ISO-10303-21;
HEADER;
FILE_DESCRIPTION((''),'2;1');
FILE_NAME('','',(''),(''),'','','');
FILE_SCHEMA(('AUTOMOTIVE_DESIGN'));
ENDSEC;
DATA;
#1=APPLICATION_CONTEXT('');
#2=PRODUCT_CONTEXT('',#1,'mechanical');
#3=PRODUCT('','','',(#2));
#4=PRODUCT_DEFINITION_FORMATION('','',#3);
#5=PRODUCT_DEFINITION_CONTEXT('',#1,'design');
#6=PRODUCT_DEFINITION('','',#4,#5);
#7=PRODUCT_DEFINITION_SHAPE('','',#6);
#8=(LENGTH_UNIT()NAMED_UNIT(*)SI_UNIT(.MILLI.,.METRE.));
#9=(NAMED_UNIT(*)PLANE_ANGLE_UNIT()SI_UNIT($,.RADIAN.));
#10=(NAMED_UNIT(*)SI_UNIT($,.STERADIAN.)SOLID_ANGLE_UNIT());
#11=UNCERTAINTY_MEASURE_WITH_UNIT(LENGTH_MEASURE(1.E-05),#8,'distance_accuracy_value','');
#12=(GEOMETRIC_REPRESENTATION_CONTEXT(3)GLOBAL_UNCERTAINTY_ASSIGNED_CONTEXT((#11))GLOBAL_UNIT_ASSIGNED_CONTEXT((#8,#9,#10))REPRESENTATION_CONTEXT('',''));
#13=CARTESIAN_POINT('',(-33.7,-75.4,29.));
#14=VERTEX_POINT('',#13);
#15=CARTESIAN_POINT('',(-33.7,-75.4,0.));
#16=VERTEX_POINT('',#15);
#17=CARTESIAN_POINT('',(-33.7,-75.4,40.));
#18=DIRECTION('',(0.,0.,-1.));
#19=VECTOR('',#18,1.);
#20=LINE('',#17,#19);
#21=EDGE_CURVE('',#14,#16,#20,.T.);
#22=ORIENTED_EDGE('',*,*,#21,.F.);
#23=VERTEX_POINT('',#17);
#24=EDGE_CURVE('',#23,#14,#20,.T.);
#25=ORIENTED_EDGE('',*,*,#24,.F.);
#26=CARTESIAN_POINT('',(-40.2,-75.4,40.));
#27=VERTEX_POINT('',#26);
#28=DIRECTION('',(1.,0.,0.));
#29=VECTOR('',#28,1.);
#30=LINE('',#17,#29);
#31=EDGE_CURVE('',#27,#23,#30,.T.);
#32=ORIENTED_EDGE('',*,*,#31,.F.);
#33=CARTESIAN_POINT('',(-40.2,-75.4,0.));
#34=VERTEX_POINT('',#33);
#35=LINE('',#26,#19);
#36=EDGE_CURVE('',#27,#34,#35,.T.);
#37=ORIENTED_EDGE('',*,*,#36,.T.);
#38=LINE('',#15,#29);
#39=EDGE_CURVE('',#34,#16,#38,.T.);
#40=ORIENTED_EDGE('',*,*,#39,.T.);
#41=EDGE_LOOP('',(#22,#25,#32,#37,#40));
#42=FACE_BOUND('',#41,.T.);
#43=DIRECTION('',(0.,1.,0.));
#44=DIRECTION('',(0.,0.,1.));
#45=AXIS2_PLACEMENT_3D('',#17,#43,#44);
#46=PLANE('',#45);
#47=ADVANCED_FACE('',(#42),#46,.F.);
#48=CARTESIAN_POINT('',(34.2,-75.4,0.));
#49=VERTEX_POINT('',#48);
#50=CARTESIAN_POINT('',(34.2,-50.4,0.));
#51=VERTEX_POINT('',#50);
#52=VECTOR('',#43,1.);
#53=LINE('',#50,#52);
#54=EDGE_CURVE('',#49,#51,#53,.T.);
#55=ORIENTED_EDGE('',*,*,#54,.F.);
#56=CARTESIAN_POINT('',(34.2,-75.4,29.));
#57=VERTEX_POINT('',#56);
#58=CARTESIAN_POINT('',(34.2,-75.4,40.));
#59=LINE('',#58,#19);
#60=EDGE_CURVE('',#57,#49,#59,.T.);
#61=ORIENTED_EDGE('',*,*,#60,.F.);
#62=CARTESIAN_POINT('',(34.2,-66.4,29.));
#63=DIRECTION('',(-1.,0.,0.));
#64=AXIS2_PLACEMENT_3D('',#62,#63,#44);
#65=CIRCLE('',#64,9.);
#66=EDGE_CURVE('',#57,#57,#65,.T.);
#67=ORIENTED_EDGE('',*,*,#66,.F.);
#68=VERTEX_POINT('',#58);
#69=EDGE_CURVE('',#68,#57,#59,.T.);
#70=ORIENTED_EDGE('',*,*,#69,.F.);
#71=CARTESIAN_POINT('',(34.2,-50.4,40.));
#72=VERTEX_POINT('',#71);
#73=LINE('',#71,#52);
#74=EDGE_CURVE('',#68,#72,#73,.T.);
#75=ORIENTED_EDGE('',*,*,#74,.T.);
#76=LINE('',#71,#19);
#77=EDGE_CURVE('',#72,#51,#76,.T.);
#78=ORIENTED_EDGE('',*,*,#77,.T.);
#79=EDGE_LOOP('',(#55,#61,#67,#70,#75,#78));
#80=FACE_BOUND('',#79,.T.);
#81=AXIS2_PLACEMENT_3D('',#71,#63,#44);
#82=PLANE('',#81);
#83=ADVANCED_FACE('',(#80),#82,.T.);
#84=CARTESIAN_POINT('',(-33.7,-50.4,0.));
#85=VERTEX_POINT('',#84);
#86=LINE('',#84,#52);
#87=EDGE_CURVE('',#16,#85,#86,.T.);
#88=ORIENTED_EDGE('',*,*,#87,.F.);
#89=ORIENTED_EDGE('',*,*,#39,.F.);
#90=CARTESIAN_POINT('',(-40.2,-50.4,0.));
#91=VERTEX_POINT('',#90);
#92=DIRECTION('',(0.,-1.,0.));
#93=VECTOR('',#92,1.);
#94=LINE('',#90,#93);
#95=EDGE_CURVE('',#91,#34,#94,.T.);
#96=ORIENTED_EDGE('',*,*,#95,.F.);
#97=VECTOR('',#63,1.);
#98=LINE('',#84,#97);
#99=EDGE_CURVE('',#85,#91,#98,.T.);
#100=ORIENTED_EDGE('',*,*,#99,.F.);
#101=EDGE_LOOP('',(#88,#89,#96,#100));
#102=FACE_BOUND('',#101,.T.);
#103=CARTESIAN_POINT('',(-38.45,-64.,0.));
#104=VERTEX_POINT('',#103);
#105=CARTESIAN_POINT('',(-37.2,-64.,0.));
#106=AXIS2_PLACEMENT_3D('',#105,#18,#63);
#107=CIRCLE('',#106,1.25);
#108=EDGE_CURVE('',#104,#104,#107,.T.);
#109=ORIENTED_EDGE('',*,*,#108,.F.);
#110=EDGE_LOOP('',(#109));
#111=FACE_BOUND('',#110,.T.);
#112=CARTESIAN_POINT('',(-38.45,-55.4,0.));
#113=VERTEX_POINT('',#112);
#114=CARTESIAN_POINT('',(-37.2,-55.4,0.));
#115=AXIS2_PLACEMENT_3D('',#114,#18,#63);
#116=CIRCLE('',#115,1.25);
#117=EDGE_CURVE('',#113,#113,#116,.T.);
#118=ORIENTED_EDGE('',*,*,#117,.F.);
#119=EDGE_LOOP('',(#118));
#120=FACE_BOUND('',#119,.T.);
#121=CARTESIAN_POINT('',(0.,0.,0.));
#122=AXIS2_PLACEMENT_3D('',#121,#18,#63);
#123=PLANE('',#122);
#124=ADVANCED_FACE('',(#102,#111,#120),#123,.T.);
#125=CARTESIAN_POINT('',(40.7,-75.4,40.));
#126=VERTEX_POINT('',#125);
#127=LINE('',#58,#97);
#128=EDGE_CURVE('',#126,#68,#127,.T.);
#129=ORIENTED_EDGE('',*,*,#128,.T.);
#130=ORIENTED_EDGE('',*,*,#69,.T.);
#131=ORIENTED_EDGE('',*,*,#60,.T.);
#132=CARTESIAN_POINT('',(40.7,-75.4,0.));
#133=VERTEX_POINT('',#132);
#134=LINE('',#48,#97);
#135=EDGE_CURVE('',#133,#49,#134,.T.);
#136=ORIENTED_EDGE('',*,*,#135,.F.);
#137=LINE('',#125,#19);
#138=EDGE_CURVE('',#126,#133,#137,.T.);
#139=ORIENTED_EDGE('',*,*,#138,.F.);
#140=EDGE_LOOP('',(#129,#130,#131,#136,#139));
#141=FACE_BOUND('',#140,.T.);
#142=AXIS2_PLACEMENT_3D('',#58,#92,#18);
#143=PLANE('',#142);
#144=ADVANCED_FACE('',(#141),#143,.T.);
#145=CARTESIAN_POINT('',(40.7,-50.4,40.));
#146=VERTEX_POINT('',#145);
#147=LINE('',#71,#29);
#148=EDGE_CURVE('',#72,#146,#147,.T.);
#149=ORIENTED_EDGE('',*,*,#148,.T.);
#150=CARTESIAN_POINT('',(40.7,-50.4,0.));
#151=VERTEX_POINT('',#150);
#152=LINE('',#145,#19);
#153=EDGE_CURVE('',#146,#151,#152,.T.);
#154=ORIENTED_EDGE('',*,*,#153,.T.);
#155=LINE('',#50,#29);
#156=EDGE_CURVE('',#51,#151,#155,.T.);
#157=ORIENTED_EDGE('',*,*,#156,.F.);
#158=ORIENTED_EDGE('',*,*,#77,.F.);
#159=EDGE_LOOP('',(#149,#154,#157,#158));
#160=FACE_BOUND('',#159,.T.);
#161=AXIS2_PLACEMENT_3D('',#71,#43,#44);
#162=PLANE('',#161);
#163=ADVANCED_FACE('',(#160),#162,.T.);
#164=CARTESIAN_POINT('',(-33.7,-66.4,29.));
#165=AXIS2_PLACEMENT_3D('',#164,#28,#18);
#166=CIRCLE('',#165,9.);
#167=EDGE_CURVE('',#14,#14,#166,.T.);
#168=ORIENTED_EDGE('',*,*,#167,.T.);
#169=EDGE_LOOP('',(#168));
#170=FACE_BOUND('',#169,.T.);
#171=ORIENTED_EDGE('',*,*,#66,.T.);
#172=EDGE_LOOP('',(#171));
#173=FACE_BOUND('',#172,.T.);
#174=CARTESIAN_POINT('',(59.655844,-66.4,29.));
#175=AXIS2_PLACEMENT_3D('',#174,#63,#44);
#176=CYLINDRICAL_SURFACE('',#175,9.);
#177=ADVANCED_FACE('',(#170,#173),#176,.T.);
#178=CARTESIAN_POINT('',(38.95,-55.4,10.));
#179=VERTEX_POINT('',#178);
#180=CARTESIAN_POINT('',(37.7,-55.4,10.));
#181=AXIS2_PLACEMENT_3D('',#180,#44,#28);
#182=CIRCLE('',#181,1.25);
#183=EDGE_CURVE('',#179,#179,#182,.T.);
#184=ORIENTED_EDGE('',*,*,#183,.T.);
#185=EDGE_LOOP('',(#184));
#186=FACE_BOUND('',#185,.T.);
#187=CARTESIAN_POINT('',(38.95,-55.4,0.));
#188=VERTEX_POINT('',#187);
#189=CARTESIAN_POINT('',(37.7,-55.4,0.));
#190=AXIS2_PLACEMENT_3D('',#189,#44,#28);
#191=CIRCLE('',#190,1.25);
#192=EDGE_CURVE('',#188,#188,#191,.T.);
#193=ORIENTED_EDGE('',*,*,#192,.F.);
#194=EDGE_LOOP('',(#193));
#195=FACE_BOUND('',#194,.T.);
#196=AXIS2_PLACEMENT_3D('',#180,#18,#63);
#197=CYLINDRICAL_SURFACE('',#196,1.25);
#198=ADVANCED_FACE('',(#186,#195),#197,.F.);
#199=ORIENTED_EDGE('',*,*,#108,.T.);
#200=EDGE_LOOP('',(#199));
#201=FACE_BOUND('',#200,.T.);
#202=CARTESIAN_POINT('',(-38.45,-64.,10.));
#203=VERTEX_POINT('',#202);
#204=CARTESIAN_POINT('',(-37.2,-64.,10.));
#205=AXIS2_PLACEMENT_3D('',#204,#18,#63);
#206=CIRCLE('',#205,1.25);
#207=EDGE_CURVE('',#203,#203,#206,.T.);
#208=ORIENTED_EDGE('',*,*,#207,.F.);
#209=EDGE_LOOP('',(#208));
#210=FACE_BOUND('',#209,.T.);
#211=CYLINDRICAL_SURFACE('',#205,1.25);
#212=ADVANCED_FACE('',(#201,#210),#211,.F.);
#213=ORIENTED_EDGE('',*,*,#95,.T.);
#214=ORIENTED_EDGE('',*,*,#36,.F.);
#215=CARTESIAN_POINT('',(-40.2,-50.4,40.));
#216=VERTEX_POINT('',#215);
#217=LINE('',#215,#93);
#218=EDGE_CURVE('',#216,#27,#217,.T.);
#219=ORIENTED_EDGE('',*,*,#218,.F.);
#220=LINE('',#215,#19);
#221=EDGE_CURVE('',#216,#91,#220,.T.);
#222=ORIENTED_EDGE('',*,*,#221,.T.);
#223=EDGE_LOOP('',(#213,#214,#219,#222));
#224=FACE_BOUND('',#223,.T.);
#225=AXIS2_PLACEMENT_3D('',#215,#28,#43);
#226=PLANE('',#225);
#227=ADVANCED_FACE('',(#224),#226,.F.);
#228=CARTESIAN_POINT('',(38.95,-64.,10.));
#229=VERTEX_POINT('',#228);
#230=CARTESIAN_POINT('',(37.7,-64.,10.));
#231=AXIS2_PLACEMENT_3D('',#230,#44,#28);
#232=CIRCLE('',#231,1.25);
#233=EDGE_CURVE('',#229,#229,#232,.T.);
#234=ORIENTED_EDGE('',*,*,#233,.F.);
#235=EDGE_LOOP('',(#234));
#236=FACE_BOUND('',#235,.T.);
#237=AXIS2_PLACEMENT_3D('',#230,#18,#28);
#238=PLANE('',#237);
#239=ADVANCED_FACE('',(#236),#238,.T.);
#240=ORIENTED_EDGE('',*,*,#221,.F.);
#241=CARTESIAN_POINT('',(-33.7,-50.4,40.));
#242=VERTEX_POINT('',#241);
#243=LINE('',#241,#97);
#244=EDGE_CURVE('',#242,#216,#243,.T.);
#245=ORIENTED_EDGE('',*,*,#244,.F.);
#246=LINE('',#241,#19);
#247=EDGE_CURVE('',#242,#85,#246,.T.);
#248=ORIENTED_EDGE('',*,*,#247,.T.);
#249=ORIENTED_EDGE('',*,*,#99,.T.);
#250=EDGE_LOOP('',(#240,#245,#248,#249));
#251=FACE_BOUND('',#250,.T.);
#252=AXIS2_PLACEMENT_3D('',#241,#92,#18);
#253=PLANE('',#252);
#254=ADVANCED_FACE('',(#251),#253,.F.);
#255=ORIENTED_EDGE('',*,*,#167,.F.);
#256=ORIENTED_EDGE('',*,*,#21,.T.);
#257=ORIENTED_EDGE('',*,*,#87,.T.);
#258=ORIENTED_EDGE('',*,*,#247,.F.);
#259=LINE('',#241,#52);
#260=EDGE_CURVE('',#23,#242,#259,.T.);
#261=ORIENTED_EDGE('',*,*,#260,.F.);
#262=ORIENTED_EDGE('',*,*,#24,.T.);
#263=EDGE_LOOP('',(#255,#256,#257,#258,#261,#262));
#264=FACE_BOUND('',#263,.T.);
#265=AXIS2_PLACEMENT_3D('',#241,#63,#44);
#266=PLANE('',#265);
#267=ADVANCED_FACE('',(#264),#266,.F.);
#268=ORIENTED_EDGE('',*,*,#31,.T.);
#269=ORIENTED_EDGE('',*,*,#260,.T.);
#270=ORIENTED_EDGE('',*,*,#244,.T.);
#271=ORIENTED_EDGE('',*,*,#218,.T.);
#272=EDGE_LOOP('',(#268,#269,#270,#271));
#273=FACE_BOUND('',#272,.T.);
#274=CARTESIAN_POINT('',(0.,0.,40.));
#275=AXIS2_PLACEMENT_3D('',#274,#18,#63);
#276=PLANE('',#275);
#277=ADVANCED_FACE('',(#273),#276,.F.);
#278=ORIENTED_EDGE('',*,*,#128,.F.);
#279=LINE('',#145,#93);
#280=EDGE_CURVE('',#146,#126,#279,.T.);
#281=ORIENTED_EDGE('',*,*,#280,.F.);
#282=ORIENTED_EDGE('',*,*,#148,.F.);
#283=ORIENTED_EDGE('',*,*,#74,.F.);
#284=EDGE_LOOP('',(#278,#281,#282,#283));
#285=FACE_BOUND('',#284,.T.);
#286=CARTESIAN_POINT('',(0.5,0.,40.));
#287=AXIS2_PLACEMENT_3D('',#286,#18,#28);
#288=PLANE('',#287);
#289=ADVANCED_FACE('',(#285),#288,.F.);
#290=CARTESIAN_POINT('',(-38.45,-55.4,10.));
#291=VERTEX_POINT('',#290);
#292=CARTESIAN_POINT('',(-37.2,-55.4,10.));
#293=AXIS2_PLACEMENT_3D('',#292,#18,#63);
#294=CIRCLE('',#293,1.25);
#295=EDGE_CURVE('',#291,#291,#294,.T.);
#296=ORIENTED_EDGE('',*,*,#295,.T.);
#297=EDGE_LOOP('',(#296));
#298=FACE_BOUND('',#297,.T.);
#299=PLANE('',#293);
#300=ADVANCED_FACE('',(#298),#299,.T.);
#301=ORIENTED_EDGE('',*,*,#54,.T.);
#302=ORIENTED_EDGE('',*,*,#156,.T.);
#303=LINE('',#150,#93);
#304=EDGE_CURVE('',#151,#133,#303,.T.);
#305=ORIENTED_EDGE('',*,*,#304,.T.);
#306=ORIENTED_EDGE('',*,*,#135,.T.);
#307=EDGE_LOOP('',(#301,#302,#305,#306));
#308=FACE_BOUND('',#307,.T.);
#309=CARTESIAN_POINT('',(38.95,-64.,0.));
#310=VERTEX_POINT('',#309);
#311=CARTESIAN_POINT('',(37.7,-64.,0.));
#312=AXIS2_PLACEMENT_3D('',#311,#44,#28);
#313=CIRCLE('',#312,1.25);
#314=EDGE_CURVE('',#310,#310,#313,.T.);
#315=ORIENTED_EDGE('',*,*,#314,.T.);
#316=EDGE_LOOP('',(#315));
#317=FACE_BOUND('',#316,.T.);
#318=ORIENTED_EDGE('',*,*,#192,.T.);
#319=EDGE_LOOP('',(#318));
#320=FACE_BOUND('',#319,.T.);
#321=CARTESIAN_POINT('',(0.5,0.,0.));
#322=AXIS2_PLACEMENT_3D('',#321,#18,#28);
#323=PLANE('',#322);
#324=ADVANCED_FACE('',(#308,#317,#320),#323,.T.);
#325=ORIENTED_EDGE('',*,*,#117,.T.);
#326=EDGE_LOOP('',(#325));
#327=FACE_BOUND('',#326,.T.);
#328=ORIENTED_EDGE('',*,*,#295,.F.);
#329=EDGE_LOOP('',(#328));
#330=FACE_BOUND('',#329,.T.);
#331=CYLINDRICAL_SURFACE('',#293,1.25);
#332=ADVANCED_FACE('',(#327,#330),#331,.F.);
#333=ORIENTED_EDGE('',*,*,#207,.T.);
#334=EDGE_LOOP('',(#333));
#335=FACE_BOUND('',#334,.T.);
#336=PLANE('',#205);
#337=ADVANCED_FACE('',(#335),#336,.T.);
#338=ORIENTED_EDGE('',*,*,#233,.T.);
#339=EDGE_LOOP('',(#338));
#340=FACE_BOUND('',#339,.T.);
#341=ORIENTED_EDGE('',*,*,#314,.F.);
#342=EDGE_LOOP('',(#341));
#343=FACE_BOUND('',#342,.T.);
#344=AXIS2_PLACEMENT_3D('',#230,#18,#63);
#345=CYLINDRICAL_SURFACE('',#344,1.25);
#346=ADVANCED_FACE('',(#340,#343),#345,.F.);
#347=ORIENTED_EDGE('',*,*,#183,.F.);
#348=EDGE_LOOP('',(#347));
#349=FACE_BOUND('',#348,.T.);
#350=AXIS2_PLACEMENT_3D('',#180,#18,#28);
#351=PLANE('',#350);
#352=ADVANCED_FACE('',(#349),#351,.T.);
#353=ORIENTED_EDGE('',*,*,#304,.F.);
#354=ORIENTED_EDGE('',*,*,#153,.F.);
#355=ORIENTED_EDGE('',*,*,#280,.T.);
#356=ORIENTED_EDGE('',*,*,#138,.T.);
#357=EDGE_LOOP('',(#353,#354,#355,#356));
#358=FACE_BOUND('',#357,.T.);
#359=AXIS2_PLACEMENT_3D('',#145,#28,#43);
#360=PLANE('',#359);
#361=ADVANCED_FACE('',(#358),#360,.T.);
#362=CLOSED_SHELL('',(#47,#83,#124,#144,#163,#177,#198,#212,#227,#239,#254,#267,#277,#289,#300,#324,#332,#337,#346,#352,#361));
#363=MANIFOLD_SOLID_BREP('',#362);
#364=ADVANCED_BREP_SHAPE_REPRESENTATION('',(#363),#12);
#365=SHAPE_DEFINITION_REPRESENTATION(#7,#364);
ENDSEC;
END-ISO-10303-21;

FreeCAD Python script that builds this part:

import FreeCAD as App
import Part
import Sketcher

V = App.Vector


def add_polygon(sketch, points):
    """Adds a closed chain of lines whose ends are joined by coincident constraints."""
    first, n = sketch.GeometryCount, len(points)
    for a, b in zip(points, points[1:] + points[:1]):
        sketch.addGeometry(Part.LineSegment(App.Vector(*a, 0), App.Vector(*b, 0)), False)
    for i in range(n):
        sketch.addConstraint(Sketcher.Constraint("Coincident", first + i, 2, first + (i + 1) % n, 1))

doc = App.newDocument("Part")
body = doc.addObject("PartDesign::Body", "Body")

# Sketch on XY plane
sketch1 = body.newObject("Sketcher::SketchObject", "Sketch")
sketch1.AttachmentSupport = (doc.getObject("XY_Plane"), [""])
sketch1.MapMode = "FlatFace"
add_polygon(sketch1, [(-40, -50), (-40, -75), (-34, -75), (-34, -50)])  # lines 0-3
sketch1.addConstraint(Sketcher.Constraint("Vertical", 0))
sketch1.addConstraint(Sketcher.Constraint("Horizontal", 1))
sketch1.addConstraint(Sketcher.Constraint("Vertical", 2))
sketch1.addConstraint(Sketcher.Constraint("Horizontal", 3))
sketch1.addConstraint(Sketcher.Constraint("DistanceY", 0, 2, 0, 1, 25.0))
sketch1.addConstraint(Sketcher.Constraint("DistanceX", 1, 1, 1, 2, 6.5))
sketch1.addConstraint(Sketcher.Constraint("DistanceX", 0, 2, -1, 1, 40.2))
sketch1.addConstraint(Sketcher.Constraint("DistanceY", 0, 2, -1, 1, 75.4))
pad1 = body.newObject("PartDesign::Pad", "Pad")
pad1.Profile = sketch1
pad1.Length = 40

# Sketch on XY plane
sketch2 = body.newObject("Sketcher::SketchObject", "Sketch001")
sketch2.AttachmentSupport = (doc.getObject("XY_Plane"), [""])
sketch2.MapMode = "FlatFace"
sketch2.addGeometry(Part.Circle(V(-37.2, -55.4, 0), V(0, 0, 1), 1.2), False)
sketch2.addGeometry(Part.Circle(V(-37.2, -64, 0), V(0, 0, 1), 1.2), False)
sketch2.addConstraint(Sketcher.Constraint("Equal", 0, 1))
sketch2.addConstraint(Sketcher.Constraint("Vertical", 0, 3, 1, 3))
sketch2.addConstraint(Sketcher.Constraint("Diameter", 0, 2.5))
sketch2.addConstraint(Sketcher.Constraint("DistanceY", 1, 3, -1, 1, 64.0))
sketch2.addConstraint(Sketcher.Constraint("DistanceX", 0, 3, -1, 1, 37.2))
sketch2.addConstraint(Sketcher.Constraint("DistanceY", 0, 3, -1, 1, 55.4))
pocket1 = body.newObject("PartDesign::Pocket", "Pocket")
pocket1.Profile = sketch2
pocket1.Length = 10
pocket1.Reversed = True

# Sketch on YZ plane
sketch3 = body.newObject("Sketcher::SketchObject", "Sketch002")
sketch3.AttachmentSupport = (doc.getObject("YZ_Plane"), [""])
sketch3.MapMode = "FlatFace"
sketch3.AttachmentOffset = App.Placement(V(0, 0, -33.7), App.Rotation())
sketch3.addGeometry(Part.Circle(V(-66, 29, 0), V(0, 0, 1), 9), False)
sketch3.addConstraint(Sketcher.Constraint("Diameter", 0, 18.0))
sketch3.addConstraint(Sketcher.Constraint("DistanceY", -1, 1, 0, 3, 29.0))
sketch3.addConstraint(Sketcher.Constraint("DistanceX", 0, 3, -1, 1, 66.4))
pad2 = body.newObject("PartDesign::Pad", "Pad001")
pad2.Profile = sketch3
pad2.Length = 67.9
doc.recompute()

datumplane = body.newObject("PartDesign::Plane", "DatumPlane")
datumplane.AttachmentSupport = (doc.getObject("YZ_Plane"), [""])
datumplane.MapMode = "FlatFace"
datumplane.AttachmentOffset = App.Placement(V(0, 0, 0.25), App.Rotation())
mirrored = body.newObject("PartDesign::Mirrored", "Mirrored")
mirrored.Originals = [pad1, pocket1]
mirrored.MirrorPlane = (datumplane, [""])
body.Tip = mirrored

doc.recompute()
